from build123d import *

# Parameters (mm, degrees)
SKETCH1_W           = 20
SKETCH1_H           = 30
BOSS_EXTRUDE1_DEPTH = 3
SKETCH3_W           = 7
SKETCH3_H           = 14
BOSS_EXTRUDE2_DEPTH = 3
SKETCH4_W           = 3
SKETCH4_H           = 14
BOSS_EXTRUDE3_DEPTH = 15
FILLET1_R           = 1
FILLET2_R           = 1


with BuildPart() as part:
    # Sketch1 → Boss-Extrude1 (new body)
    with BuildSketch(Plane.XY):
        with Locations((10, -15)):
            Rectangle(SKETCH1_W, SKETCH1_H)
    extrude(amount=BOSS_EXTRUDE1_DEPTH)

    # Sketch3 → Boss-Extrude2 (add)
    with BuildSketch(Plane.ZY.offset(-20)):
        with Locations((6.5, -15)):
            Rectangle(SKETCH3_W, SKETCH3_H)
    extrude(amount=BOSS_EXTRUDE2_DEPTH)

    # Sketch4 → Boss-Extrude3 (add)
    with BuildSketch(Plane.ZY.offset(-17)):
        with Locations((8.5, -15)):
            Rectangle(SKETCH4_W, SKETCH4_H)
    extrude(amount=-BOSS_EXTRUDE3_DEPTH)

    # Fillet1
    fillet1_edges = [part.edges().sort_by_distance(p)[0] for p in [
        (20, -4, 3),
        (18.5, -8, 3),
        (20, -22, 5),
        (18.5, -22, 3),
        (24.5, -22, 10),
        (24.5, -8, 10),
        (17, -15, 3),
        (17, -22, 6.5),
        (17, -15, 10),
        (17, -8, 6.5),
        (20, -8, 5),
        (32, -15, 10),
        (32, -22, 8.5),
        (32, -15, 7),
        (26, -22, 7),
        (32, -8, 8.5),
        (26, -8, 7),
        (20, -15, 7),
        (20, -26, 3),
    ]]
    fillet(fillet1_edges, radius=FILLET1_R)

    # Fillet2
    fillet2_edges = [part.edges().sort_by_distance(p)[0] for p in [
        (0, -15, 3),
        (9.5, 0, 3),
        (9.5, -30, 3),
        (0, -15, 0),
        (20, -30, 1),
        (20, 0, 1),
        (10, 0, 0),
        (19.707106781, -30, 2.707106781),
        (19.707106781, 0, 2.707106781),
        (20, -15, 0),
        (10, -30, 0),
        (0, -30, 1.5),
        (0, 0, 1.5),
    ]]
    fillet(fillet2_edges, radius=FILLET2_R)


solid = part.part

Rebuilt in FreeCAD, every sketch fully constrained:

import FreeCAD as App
import Part
import Sketcher
from FreeCAD import Vector
Q = App.Units.Quantity


def edges_at(feature, points):
    """Names of the edges that pass closest to the given points."""
    edges = feature.Shape.Edges
    near = lambda p: min(range(len(edges)), key=lambda i: edges[i].distToShape(Part.Vertex(*p))[0])
    return sorted({f"Edge{near(p) + 1}" for p in points})

doc = App.newDocument("Part")
params = doc.addObject("Spreadsheet::Sheet", "Params")
for row, (alias, value) in enumerate([
    ("sketch1_width", "20 mm"),
    ("sketch1_height", "30 mm"),
    ("pad1_length", "3 mm"),
    ("sketch2_width", "14 mm"),
    ("sketch2_height", "7 mm"),
    ("pad2_length", "3 mm"),
    ("sketch3_width", "14 mm"),
    ("sketch3_height", "3 mm"),
    ("pad3_length", "15 mm"),
    ("fillet_radius", "1 mm"),
    ("fillet2_radius", "1 mm"),
], start=1):
    params.set(f"A{row}", alias)
    params.set(f"B{row}", "=" + value)
    params.setAlias(f"B{row}", alias)

body = doc.addObject("PartDesign::Body", "Body")

# Sketch on XY plane
sketch1 = doc.addObject("Sketcher::SketchObject", "Sketch")
body.addObject(sketch1)
sketch1.AttachmentSupport = (doc.XY_Plane, [""])
sketch1.MapMode = "FlatFace"
sketch1.addGeometry([
    Part.LineSegment(Vector(0, 0, 0), Vector(0, -30, 0)),
    Part.LineSegment(Vector(0, -30, 0), Vector(20, -30, 0)),
    Part.LineSegment(Vector(20, -30, 0), Vector(20, 0, 0)),
    Part.LineSegment(Vector(20, 0, 0), Vector(0, 0, 0)),
], False)
sketch1.addConstraint([
    Sketcher.Constraint("Coincident", 0, 2, 1, 1),
    Sketcher.Constraint("Coincident", 1, 2, 2, 1),
    Sketcher.Constraint("Coincident", 2, 2, 3, 1),
    Sketcher.Constraint("Coincident", 3, 2, 0, 1),
    Sketcher.Constraint("Vertical", 0),
    Sketcher.Constraint("Horizontal", 1),
    Sketcher.Constraint("Vertical", 2),
    Sketcher.Constraint("Horizontal", 3),
    Sketcher.Constraint("Coincident", 3, 2, -1, 1),
    Sketcher.Constraint("DistanceX", 1, 1, 1, 2, Q("20 mm")),
    Sketcher.Constraint("DistanceY", 0, 2, 0, 1, Q("30 mm")),
])
sketch1.setExpression("Constraints[9]", "Params.sketch1_width")
sketch1.setExpression("Constraints[10]", "Params.sketch1_height")
pad1 = doc.addObject("PartDesign::Pad", "Pad")
body.addObject(pad1)
pad1.Profile = sketch1
pad1.setExpression("Length", "Params.pad1_length")

# Sketch on YZ plane
sketch2 = doc.addObject("Sketcher::SketchObject", "Sketch001")
body.addObject(sketch2)
sketch2.AttachmentSupport = (doc.YZ_Plane, [""])
sketch2.MapMode = "FlatFace"
sketch2.AttachmentOffset = App.Placement(Vector(0, 0, 20), App.Rotation())
sketch2.addGeometry([
    Part.LineSegment(Vector(-8, 3, 0), Vector(-22, 3, 0)),
    Part.LineSegment(Vector(-22, 3, 0), Vector(-22, 10, 0)),
    Part.LineSegment(Vector(-22, 10, 0), Vector(-8, 10, 0)),
    Part.LineSegment(Vector(-8, 10, 0), Vector(-8, 3, 0)),
], False)
sketch2.addConstraint([
    Sketcher.Constraint("Coincident", 0, 2, 1, 1),
    Sketcher.Constraint("Coincident", 1, 2, 2, 1),
    Sketcher.Constraint("Coincident", 2, 2, 3, 1),
    Sketcher.Constraint("Coincident", 3, 2, 0, 1),
    Sketcher.Constraint("Horizontal", 0),
    Sketcher.Constraint("Vertical", 1),
    Sketcher.Constraint("Horizontal", 2),
    Sketcher.Constraint("Vertical", 3),
    Sketcher.Constraint("DistanceX", 0, 2, 0, 1, Q("14 mm")),
    Sketcher.Constraint("DistanceY", 1, 1, 1, 2, Q("7 mm")),
    Sketcher.Constraint("DistanceX", 0, 2, -1, 1, Q("22 mm")),
    Sketcher.Constraint("DistanceY", -1, 1, 0, 2, Q("3 mm")),
])
sketch2.setExpression("Constraints[8]", "Params.sketch2_width")
sketch2.setExpression("Constraints[9]", "Params.sketch2_height")
pad2 = doc.addObject("PartDesign::Pad", "Pad001")
body.addObject(pad2)
pad2.Profile = sketch2
pad2.setExpression("Length", "Params.pad2_length")
pad2.Reversed = True

# Sketch on YZ plane
sketch3 = doc.addObject("Sketcher::SketchObject", "Sketch002")
body.addObject(sketch3)
sketch3.AttachmentSupport = (doc.YZ_Plane, [""])
sketch3.MapMode = "FlatFace"
sketch3.AttachmentOffset = App.Placement(Vector(0, 0, 17), App.Rotation())
sketch3.addGeometry([
    Part.LineSegment(Vector(-8, 7, 0), Vector(-22, 7, 0)),
    Part.LineSegment(Vector(-22, 7, 0), Vector(-22, 10, 0)),
    Part.LineSegment(Vector(-22, 10, 0), Vector(-8, 10, 0)),
    Part.LineSegment(Vector(-8, 10, 0), Vector(-8, 7, 0)),
], False)
sketch3.addConstraint([
    Sketcher.Constraint("Coincident", 0, 2, 1, 1),
    Sketcher.Constraint("Coincident", 1, 2, 2, 1),
    Sketcher.Constraint("Coincident", 2, 2, 3, 1),
    Sketcher.Constraint("Coincident", 3, 2, 0, 1),
    Sketcher.Constraint("Horizontal", 0),
    Sketcher.Constraint("Vertical", 1),
    Sketcher.Constraint("Horizontal", 2),
    Sketcher.Constraint("Vertical", 3),
    Sketcher.Constraint("DistanceX", 0, 2, 0, 1, Q("14 mm")),
    Sketcher.Constraint("DistanceY", 1, 1, 1, 2, Q("3 mm")),
    Sketcher.Constraint("DistanceX", 0, 2, -1, 1, Q("22 mm")),
    Sketcher.Constraint("DistanceY", -1, 1, 0, 2, Q("7 mm")),
])
sketch3.setExpression("Constraints[8]", "Params.sketch3_width")
sketch3.setExpression("Constraints[9]", "Params.sketch3_height")
pad3 = doc.addObject("PartDesign::Pad", "Pad002")
body.addObject(pad3)
pad3.Profile = sketch3
pad3.setExpression("Length", "Params.pad3_length")
doc.recompute()

fillet = doc.addObject("PartDesign::Fillet", "Fillet")
body.addObject(fillet)
fillet.Base = (pad3, edges_at(pad3, [
    (20, -4, 3),
    (18.5, -8, 3),
    (20, -22, 5),
    (18.5, -22, 3),
    (24.5, -22, 10),
    (24.5, -8, 10),
    (17, -15, 3),
    (17, -22, 6.5),
    (17, -15, 10),
    (17, -8, 6.5),
    (20, -8, 5),
    (32, -15, 10),
    (32, -22, 8.5),
    (32, -15, 7),
    (26, -22, 7),
    (32, -8, 8.5),
    (26, -8, 7),
    (20, -15, 7),
    (20, -26, 3),
]))
fillet.setExpression("Radius", "Params.fillet_radius")
doc.recompute()

fillet2 = doc.addObject("PartDesign::Fillet", "Fillet001")
body.addObject(fillet2)
fillet2.Base = (fillet, edges_at(fillet, [
    (0, -15, 3),
    (9.5, 0, 3),
    (9.5, -30, 3),
    (0, -15, 0),
    (20, -30, 1),
    (20, 0, 1),
    (10, 0, 0),
    (19.707, -30, 2.707),
    (19.707, 0, 2.707),
    (20, -15, 0),
    (10, -30, 0),
    (0, -30, 1.5),
    (0, 0, 1.5),
]))
fillet2.setExpression("Radius", "Params.fillet2_radius")

doc.recompute()
